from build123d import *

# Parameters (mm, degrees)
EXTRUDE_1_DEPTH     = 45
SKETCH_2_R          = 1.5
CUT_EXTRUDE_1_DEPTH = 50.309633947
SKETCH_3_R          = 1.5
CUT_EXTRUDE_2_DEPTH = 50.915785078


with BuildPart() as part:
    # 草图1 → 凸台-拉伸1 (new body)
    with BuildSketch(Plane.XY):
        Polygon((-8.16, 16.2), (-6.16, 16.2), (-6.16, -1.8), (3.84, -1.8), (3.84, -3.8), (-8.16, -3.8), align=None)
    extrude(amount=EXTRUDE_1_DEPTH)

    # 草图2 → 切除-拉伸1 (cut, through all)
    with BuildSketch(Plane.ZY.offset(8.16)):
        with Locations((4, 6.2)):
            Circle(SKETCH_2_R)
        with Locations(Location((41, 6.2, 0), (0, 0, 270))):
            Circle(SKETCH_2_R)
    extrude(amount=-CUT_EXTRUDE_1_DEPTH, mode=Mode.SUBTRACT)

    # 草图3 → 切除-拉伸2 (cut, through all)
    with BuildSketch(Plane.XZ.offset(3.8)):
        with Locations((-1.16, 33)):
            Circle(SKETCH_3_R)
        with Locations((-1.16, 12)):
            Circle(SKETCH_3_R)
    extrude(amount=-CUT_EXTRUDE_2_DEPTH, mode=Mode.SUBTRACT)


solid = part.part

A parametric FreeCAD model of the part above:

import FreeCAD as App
import Part
import Sketcher
from FreeCAD import Vector

doc = App.newDocument("Part")
body = doc.addObject("PartDesign::Body", "Body")

sketch1 = body.newObject("Sketcher::SketchObject", "Sketch")
sketch1.AttachmentSupport = (doc.getObject("XY_Plane"), [""])
sketch1.MapMode = "FlatFace"
sketch1.addGeometry([
    Part.LineSegment(Vector(-6.2, 16.2, 0), Vector(-8.2, 16.2, 0)),
    Part.LineSegment(Vector(-8.2, 16.2, 0), Vector(-8.2, -3.8, 0)),
    Part.LineSegment(Vector(-8.2, -3.8, 0), Vector(3.8, -3.8, 0)),
    Part.LineSegment(Vector(3.8, -3.8, 0), Vector(3.8, -1.8, 0)),
    Part.LineSegment(Vector(3.8, -1.8, 0), Vector(-6.2, -1.8, 0)),
    Part.LineSegment(Vector(-6.2, -1.8, 0), Vector(-6.2, 16.2, 0)),
], False)
sketch1.addConstraint([
    Sketcher.Constraint("Coincident", 0, 2, 1, 1),
    Sketcher.Constraint("Coincident", 1, 2, 2, 1),
    Sketcher.Constraint("Coincident", 2, 2, 3, 1),
    Sketcher.Constraint("Coincident", 3, 2, 4, 1),
    Sketcher.Constraint("Coincident", 4, 2, 5, 1),
    Sketcher.Constraint("Coincident", 5, 2, 0, 1),
    Sketcher.Constraint("Horizontal", 0),
    Sketcher.Constraint("Vertical", 1),
    Sketcher.Constraint("Horizontal", 2),
    Sketcher.Constraint("Vertical", 3),
    Sketcher.Constraint("Horizontal", 4),
    Sketcher.Constraint("Vertical", 5),
    Sketcher.Constraint("Equal", 0, 3),
    Sketcher.Constraint("DistanceX", 0, 2, 0, 1, 2.0),
    Sketcher.Constraint("DistanceX", 2, 1, 2, 2, 12.0),
    Sketcher.Constraint("DistanceY", 1, 2, 1, 1, 20.0),
    Sketcher.Constraint("DistanceY", -1, 1, 0, 2, 16.2),
    Sketcher.Constraint("DistanceX", 0, 2, -1, 1, 8.16),
])
pad1 = body.newObject("PartDesign::Pad", "Pad")
pad1.Profile = sketch1
pad1.Length = 45

sketch2 = body.newObject("Sketcher::SketchObject", "Sketch001")
sketch2.AttachmentSupport = (doc.getObject("YZ_Plane"), [""])
sketch2.MapMode = "FlatFace"
sketch2.AttachmentOffset = App.Placement(Vector(0, 0, -8.16), App.Rotation())
sketch2.addGeometry([
    Part.Circle(Vector(6.2, 4, 0), Vector(0, 0, 1), 1.5),
    Part.Circle(Vector(6.2, 41, 0), Vector(0, 0, 1), 1.5),
], False)
sketch2.addConstraint([
    Sketcher.Constraint("Equal", 0, 1),
    Sketcher.Constraint("Vertical", 0, 3, 1, 3),
    Sketcher.Constraint("Diameter", 0, 3.0),
    Sketcher.Constraint("DistanceY", -1, 1, 0, 3, 4.0),
    Sketcher.Constraint("DistanceY", -1, 1, 1, 3, 41.0),
    Sketcher.Constraint("DistanceX", -1, 1, 0, 3, 6.2),
])
pocket1 = body.newObject("PartDesign::Pocket", "Pocket")
pocket1.Profile = sketch2
pocket1.Type = "ThroughAll"
pocket1.Reversed = True

sketch3 = body.newObject("Sketcher::SketchObject", "Sketch002")
sketch3.AttachmentSupport = (doc.getObject("XZ_Plane"), [""])
sketch3.MapMode = "FlatFace"
sketch3.AttachmentOffset = App.Placement(Vector(0, 0, 3.8), App.Rotation())
sketch3.addGeometry([
    Part.Circle(Vector(-1.2, 33, 0), Vector(0, 0, 1), 1.5),
    Part.Circle(Vector(-1.2, 12, 0), Vector(0, 0, 1), 1.5),
], False)
sketch3.addConstraint([
    Sketcher.Constraint("Equal", 0, 1),
    Sketcher.Constraint("Vertical", 0, 3, 1, 3),
    Sketcher.Constraint("Diameter", 0, 3.0),
    Sketcher.Constraint("DistanceY", -1, 1, 0, 3, 33.0),
    Sketcher.Constraint("DistanceY", -1, 1, 1, 3, 12.0),
    Sketcher.Constraint("DistanceX", 0, 3, -1, 1, 1.16),
])
pocket2 = body.newObject("PartDesign::Pocket", "Pocket001")
pocket2.Profile = sketch3
pocket2.Type = "ThroughAll"

doc.recompute()
